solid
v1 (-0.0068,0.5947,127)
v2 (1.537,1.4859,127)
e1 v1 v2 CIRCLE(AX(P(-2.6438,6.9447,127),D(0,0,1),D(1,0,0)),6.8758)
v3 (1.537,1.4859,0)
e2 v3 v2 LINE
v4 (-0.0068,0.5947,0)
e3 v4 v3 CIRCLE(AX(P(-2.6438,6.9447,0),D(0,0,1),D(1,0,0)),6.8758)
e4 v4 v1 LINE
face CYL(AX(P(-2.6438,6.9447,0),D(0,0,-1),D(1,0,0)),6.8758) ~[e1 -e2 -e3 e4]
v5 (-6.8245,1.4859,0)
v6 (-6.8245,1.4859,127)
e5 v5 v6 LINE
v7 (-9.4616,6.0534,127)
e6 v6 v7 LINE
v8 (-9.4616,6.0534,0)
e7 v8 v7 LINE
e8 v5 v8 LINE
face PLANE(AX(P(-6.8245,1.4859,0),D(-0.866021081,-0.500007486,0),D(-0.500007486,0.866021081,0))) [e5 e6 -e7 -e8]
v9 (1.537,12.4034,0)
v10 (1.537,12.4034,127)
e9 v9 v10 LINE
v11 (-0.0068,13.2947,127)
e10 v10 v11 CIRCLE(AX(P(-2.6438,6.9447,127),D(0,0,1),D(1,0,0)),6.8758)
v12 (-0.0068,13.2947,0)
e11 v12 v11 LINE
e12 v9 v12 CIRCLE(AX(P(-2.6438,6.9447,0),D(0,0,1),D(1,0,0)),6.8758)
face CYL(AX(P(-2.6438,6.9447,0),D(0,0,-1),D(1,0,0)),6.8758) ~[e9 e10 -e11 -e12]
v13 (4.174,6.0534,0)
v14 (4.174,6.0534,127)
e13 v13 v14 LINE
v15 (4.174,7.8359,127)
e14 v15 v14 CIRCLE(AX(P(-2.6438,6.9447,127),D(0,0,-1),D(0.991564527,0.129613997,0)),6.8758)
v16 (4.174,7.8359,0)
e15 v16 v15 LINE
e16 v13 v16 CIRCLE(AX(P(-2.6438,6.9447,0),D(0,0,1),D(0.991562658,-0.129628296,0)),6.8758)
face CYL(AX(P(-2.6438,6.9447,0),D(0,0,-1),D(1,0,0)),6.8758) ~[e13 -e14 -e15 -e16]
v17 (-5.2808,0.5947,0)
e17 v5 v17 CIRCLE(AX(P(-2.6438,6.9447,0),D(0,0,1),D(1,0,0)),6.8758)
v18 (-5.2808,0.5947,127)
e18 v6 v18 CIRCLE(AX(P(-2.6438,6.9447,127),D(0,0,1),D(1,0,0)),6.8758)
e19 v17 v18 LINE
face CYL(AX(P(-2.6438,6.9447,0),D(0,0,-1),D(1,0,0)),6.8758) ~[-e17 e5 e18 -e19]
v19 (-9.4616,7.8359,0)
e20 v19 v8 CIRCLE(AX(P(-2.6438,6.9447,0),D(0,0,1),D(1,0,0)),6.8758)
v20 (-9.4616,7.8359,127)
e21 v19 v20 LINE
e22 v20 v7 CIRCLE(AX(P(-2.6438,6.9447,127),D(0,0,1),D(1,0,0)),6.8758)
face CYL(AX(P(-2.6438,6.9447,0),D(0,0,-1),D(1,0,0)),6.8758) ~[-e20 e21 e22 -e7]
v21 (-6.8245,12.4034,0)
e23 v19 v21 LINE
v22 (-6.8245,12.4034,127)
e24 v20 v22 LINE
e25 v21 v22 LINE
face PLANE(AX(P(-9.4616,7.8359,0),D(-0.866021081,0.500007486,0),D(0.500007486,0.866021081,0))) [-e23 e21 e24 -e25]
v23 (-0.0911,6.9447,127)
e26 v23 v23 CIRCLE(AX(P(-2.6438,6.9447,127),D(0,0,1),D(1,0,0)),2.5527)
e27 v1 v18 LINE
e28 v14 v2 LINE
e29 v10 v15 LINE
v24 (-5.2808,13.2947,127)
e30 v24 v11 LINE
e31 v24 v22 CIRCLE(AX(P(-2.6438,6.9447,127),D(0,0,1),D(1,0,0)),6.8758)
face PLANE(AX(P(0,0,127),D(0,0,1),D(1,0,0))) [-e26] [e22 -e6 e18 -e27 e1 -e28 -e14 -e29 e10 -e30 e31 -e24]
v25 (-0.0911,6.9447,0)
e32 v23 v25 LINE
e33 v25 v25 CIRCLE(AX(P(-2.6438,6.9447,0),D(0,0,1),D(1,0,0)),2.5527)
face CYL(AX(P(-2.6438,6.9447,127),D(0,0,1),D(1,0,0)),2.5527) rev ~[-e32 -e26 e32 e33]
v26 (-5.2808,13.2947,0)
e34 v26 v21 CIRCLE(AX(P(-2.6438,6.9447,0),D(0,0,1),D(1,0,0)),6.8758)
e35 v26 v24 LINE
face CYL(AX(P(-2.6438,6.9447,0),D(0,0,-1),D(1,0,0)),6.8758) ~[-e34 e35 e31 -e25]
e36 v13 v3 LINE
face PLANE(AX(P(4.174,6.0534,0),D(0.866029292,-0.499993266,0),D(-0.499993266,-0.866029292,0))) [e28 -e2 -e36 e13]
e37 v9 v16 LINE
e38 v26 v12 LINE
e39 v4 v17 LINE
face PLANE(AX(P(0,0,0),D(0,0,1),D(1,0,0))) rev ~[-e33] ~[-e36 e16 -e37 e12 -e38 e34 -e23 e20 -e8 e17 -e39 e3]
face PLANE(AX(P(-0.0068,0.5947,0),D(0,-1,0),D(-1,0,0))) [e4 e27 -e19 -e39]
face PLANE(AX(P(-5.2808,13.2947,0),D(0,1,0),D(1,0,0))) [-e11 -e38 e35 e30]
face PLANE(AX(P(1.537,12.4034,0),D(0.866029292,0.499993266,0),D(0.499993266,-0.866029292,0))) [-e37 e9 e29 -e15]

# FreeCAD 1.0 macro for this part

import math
import FreeCAD as App
import Part
import Sketcher

V = App.Vector
Q = App.Units.Quantity

doc = App.newDocument("Part")
body = doc.addObject("PartDesign::Body", "Body")

# Sketch on XY plane
sketch1 = doc.addObject("Sketcher::SketchObject", "Sketch")
body.addObject(sketch1)
sketch1.AttachmentSupport = (doc.XY_Plane, [""])
sketch1.MapMode = "FlatFace"
sketch1.addGeometry(Part.ArcOfCircle(Part.Circle(V(-2.6438, 6.9447, 0), V(0, 0, 1), 6.8758), math.radians(-7.448114), math.radians(7.447287)), False)
sketch1.addGeometry(Part.LineSegment(V(4.174, 7.8359, 0), V(1.537, 12.4034, 0)), False)
sketch1.addGeometry(Part.ArcOfCircle(Part.Circle(V(-2.6438, 6.9447, 0), V(0, 0, 1), 6.8758), math.radians(52.551618), math.radians(67.448081)), False)
sketch1.addGeometry(Part.LineSegment(V(-0.0068, 13.2947, 0), V(-5.2808, 13.2947, 0)), False)
sketch1.addGeometry(Part.ArcOfCircle(Part.Circle(V(-2.6438, 6.9447, 0), V(0, 0, 1), 6.8758), math.radians(112.551919), math.radians(127.447721)), False)
sketch1.addGeometry(Part.LineSegment(V(-6.8245, 12.4034, 0), V(-9.4616, 7.8359, 0)), False)
sketch1.addGeometry(Part.ArcOfCircle(Part.Circle(V(-2.6438, 6.9447, 0), V(0, 0, 1), 6.8758), math.radians(172.552713), math.radians(187.448114)), False)
sketch1.addGeometry(Part.LineSegment(V(-9.4616, 6.0534, 0), V(-6.8245, 1.4859, 0)), False)
sketch1.addGeometry(Part.ArcOfCircle(Part.Circle(V(-2.6438, 6.9447, 0), V(0, 0, 1), 6.8758), math.radians(-127.447214), math.radians(-112.551919)), False)
sketch1.addGeometry(Part.LineSegment(V(-5.2808, 0.5947, 0), V(-0.0068, 0.5947, 0)), False)
sketch1.addGeometry(Part.ArcOfCircle(Part.Circle(V(-2.6438, 6.9447, 0), V(0, 0, 1), 6.8758), math.radians(-67.448081), math.radians(-52.552124)), False)
sketch1.addGeometry(Part.LineSegment(V(1.537, 1.4859, 0), V(4.174, 6.0534, 0)), False)
sketch1.addConstraint(Sketcher.Constraint("Coincident", 0, 2, 1, 1))
sketch1.addConstraint(Sketcher.Constraint("Coincident", 1, 2, 2, 1))
sketch1.addConstraint(Sketcher.Constraint("Coincident", 2, 2, 3, 1))
sketch1.addConstraint(Sketcher.Constraint("Coincident", 3, 2, 4, 1))
sketch1.addConstraint(Sketcher.Constraint("Coincident", 4, 2, 5, 1))
sketch1.addConstraint(Sketcher.Constraint("Coincident", 5, 2, 6, 1))
sketch1.addConstraint(Sketcher.Constraint("Coincident", 6, 2, 7, 1))
sketch1.addConstraint(Sketcher.Constraint("Coincident", 7, 2, 8, 1))
sketch1.addConstraint(Sketcher.Constraint("Coincident", 8, 2, 9, 1))
sketch1.addConstraint(Sketcher.Constraint("Coincident", 9, 2, 10, 1))
sketch1.addConstraint(Sketcher.Constraint("Coincident", 10, 2, 11, 1))
sketch1.addConstraint(Sketcher.Constraint("Coincident", 11, 2, 0, 1))
sketch1.addConstraint(Sketcher.Constraint("Horizontal", 3))
sketch1.addConstraint(Sketcher.Constraint("Horizontal", 9))
sketch1.addConstraint(Sketcher.Constraint("Coincident", 2, 3, 0, 3))
sketch1.addConstraint(Sketcher.Constraint("Coincident", 4, 3, 0, 3))
sketch1.addConstraint(Sketcher.Constraint("Coincident", 6, 3, 0, 3))
sketch1.addConstraint(Sketcher.Constraint("Coincident", 8, 3, 0, 3))
sketch1.addConstraint(Sketcher.Constraint("Coincident", 10, 3, 0, 3))
sketch1.addConstraint(Sketcher.Constraint("Equal", 0, 2))
sketch1.addConstraint(Sketcher.Constraint("Equal", 2, 4))
sketch1.addConstraint(Sketcher.Constraint("Equal", 4, 6))
sketch1.addConstraint(Sketcher.Constraint("Equal", 6, 8))
sketch1.addConstraint(Sketcher.Constraint("Equal", 8, 10))
sketch1.addConstraint(Sketcher.Constraint("Parallel", 1, 7))
sketch1.addConstraint(Sketcher.Constraint("Parallel", 5, 11))
sketch1.addConstraint(Sketcher.Constraint("Horizontal", 1, 2, 4, 2))
sketch1.addConstraint(Sketcher.Constraint("Horizontal", 0, 2, 5, 2))
sketch1.addConstraint(Sketcher.Constraint("Horizontal", 7, 2, 10, 2))
sketch1.addConstraint(Sketcher.Constraint("Vertical", 5, 2, 6, 2))
sketch1.addConstraint(Sketcher.Constraint("Vertical", 3, 2, 8, 2))
sketch1.addConstraint(Sketcher.Constraint("Radius", 0, Q("0.2707 in")))
sketch1.addConstraint(Sketcher.Constraint("Angle", 1, Q("119.9996 deg")))
sketch1.addConstraint(Sketcher.Constraint("DistanceY", 0, 3, 2, 2, Q("0.25 in")))
sketch1.addConstraint(Sketcher.Constraint("DistanceY", 10, 2, 0, 2, Q("0.25 in")))
sketch1.addConstraint(Sketcher.Constraint("DistanceY", -1, 1, 0, 2, Q("0.3085 in")))
sketch1.addConstraint(Sketcher.Constraint("DistanceX", -1, 1, 1, 2, Q("0.0605 in")))
pad1 = doc.addObject("PartDesign::Pad", "Pad")
body.addObject(pad1)
pad1.Profile = sketch1
pad1.Length = Q("5 in")

# Sketch on XY plane
sketch2 = doc.addObject("Sketcher::SketchObject", "Sketch001")
body.addObject(sketch2)
sketch2.AttachmentSupport = (doc.XY_Plane, [""])
sketch2.MapMode = "FlatFace"
sketch2.AttachmentOffset = App.Placement(V(0, 0, 5 * 25.4), App.Rotation())
sketch2.addGeometry(Part.Circle(V(-2.6438, 6.9447, 0), V(0, 0, 1), 2.5527), False)
sketch2.addConstraint(Sketcher.Constraint("Diameter", 0, Q("0.201 in")))
sketch2.addConstraint(Sketcher.Constraint("DistanceX", 0, 3, -1, 1, 2.6438))
sketch2.addConstraint(Sketcher.Constraint("DistanceY", -1, 1, 0, 3, 6.9447))
pocket1 = doc.addObject("PartDesign::Pocket", "Pocket")
body.addObject(pocket1)
pocket1.Profile = sketch2
pocket1.Length = Q("5 in")

doc.recompute()
